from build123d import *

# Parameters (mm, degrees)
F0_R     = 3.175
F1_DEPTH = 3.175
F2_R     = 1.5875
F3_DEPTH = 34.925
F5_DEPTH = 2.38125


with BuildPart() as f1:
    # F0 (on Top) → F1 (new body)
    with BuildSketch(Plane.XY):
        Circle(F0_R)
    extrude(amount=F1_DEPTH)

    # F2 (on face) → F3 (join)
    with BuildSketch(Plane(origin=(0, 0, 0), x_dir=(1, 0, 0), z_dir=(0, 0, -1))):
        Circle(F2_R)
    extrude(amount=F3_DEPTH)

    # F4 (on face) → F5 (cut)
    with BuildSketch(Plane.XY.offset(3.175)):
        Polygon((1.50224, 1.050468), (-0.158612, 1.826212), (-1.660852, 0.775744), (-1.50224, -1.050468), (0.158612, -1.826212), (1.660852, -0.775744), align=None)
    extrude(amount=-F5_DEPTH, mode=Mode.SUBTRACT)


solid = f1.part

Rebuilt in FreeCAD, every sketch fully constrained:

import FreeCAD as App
import Part
import Sketcher
Q = App.Units.Quantity


def add_polygon(sketch, points):
    """Adds a closed chain of lines whose ends are joined by coincident constraints."""
    first, n = sketch.GeometryCount, len(points)
    for a, b in zip(points, points[1:] + points[:1]):
        sketch.addGeometry(Part.LineSegment(App.Vector(*a, 0), App.Vector(*b, 0)), False)
    for i in range(n):
        sketch.addConstraint(Sketcher.Constraint("Coincident", first + i, 2, first + (i + 1) % n, 1))

doc = App.newDocument("Part")
body = doc.addObject("PartDesign::Body", "Body")

sketch1 = body.newObject("Sketcher::SketchObject", "Sketch")
sketch1.AttachmentSupport = (doc.getObject("XY_Plane"), [""])
sketch1.MapMode = "FlatFace"
sketch1.addGeometry(Part.Circle(App.Vector(0, 0, 0), App.Vector(0, 0, 1), 3.2), False)
sketch1.addConstraint(Sketcher.Constraint("Coincident", 0, 3, -1, 1))
sketch1.addConstraint(Sketcher.Constraint("Diameter", 0, Q("0.25 in")))
pad1 = body.newObject("PartDesign::Pad", "Pad")
pad1.Profile = sketch1
pad1.Length = Q("0.125 in")

sketch2 = body.newObject("Sketcher::SketchObject", "Sketch001")
sketch2.AttachmentSupport = (doc.getObject("XY_Plane"), [""])
sketch2.MapMode = "FlatFace"
sketch2.addGeometry(Part.Circle(App.Vector(0, 0, 0), App.Vector(0, 0, 1), 1.6), False)
sketch2.addConstraint(Sketcher.Constraint("Coincident", 0, 3, -1, 1))
sketch2.addConstraint(Sketcher.Constraint("Diameter", 0, Q("0.125 in")))
pad2 = body.newObject("PartDesign::Pad", "Pad001")
pad2.Profile = sketch2
pad2.Length = Q("1.375 in")
pad2.Reversed = True

sketch3 = body.newObject("Sketcher::SketchObject", "Sketch002")
sketch3.AttachmentSupport = (doc.getObject("XY_Plane"), [""])
sketch3.MapMode = "FlatFace"
sketch3.AttachmentOffset = App.Placement(App.Vector(0, 0, 0.125 * 25.4), App.Rotation())
add_polygon(sketch3, [(1.5, 1.1), (-0.2, 1.8), (-1.7, 0.8), (-1.5, -1.1), (0.2, -1.8), (1.7, -0.8)])
sketch3.addConstraint(Sketcher.Constraint("Symmetric", 0, 2, 3, 2, -1, 1))
sketch3.addConstraint(Sketcher.Constraint("Symmetric", 1, 2, 4, 2, -1, 1))
sketch3.addConstraint(Sketcher.Constraint("Symmetric", 2, 2, 5, 2, -1, 1))
sketch3.addConstraint(Sketcher.Constraint("Equal", 0, 1))
sketch3.addConstraint(Sketcher.Constraint("Equal", 1, 2))
sketch3.addConstraint(Sketcher.Constraint("DistanceY", -1, 1, 0, 2, Q("1.826212 mm")))
sketch3.addConstraint(Sketcher.Constraint("DistanceX", 2, 2, -1, 1, Q("1.50224 mm")))
sketch3.addConstraint(Sketcher.Constraint("DistanceX", 1, 2, 0, 2, Q("1.50224 mm")))
sketch3.addConstraint(Sketcher.Constraint("DistanceX", 1, 2, 2, 2, Q("0.158612 mm")))
pocket1 = body.newObject("PartDesign::Pocket", "Pocket")
pocket1.Profile = sketch3
pocket1.Length = Q("0.09375 in")

doc.recompute()
